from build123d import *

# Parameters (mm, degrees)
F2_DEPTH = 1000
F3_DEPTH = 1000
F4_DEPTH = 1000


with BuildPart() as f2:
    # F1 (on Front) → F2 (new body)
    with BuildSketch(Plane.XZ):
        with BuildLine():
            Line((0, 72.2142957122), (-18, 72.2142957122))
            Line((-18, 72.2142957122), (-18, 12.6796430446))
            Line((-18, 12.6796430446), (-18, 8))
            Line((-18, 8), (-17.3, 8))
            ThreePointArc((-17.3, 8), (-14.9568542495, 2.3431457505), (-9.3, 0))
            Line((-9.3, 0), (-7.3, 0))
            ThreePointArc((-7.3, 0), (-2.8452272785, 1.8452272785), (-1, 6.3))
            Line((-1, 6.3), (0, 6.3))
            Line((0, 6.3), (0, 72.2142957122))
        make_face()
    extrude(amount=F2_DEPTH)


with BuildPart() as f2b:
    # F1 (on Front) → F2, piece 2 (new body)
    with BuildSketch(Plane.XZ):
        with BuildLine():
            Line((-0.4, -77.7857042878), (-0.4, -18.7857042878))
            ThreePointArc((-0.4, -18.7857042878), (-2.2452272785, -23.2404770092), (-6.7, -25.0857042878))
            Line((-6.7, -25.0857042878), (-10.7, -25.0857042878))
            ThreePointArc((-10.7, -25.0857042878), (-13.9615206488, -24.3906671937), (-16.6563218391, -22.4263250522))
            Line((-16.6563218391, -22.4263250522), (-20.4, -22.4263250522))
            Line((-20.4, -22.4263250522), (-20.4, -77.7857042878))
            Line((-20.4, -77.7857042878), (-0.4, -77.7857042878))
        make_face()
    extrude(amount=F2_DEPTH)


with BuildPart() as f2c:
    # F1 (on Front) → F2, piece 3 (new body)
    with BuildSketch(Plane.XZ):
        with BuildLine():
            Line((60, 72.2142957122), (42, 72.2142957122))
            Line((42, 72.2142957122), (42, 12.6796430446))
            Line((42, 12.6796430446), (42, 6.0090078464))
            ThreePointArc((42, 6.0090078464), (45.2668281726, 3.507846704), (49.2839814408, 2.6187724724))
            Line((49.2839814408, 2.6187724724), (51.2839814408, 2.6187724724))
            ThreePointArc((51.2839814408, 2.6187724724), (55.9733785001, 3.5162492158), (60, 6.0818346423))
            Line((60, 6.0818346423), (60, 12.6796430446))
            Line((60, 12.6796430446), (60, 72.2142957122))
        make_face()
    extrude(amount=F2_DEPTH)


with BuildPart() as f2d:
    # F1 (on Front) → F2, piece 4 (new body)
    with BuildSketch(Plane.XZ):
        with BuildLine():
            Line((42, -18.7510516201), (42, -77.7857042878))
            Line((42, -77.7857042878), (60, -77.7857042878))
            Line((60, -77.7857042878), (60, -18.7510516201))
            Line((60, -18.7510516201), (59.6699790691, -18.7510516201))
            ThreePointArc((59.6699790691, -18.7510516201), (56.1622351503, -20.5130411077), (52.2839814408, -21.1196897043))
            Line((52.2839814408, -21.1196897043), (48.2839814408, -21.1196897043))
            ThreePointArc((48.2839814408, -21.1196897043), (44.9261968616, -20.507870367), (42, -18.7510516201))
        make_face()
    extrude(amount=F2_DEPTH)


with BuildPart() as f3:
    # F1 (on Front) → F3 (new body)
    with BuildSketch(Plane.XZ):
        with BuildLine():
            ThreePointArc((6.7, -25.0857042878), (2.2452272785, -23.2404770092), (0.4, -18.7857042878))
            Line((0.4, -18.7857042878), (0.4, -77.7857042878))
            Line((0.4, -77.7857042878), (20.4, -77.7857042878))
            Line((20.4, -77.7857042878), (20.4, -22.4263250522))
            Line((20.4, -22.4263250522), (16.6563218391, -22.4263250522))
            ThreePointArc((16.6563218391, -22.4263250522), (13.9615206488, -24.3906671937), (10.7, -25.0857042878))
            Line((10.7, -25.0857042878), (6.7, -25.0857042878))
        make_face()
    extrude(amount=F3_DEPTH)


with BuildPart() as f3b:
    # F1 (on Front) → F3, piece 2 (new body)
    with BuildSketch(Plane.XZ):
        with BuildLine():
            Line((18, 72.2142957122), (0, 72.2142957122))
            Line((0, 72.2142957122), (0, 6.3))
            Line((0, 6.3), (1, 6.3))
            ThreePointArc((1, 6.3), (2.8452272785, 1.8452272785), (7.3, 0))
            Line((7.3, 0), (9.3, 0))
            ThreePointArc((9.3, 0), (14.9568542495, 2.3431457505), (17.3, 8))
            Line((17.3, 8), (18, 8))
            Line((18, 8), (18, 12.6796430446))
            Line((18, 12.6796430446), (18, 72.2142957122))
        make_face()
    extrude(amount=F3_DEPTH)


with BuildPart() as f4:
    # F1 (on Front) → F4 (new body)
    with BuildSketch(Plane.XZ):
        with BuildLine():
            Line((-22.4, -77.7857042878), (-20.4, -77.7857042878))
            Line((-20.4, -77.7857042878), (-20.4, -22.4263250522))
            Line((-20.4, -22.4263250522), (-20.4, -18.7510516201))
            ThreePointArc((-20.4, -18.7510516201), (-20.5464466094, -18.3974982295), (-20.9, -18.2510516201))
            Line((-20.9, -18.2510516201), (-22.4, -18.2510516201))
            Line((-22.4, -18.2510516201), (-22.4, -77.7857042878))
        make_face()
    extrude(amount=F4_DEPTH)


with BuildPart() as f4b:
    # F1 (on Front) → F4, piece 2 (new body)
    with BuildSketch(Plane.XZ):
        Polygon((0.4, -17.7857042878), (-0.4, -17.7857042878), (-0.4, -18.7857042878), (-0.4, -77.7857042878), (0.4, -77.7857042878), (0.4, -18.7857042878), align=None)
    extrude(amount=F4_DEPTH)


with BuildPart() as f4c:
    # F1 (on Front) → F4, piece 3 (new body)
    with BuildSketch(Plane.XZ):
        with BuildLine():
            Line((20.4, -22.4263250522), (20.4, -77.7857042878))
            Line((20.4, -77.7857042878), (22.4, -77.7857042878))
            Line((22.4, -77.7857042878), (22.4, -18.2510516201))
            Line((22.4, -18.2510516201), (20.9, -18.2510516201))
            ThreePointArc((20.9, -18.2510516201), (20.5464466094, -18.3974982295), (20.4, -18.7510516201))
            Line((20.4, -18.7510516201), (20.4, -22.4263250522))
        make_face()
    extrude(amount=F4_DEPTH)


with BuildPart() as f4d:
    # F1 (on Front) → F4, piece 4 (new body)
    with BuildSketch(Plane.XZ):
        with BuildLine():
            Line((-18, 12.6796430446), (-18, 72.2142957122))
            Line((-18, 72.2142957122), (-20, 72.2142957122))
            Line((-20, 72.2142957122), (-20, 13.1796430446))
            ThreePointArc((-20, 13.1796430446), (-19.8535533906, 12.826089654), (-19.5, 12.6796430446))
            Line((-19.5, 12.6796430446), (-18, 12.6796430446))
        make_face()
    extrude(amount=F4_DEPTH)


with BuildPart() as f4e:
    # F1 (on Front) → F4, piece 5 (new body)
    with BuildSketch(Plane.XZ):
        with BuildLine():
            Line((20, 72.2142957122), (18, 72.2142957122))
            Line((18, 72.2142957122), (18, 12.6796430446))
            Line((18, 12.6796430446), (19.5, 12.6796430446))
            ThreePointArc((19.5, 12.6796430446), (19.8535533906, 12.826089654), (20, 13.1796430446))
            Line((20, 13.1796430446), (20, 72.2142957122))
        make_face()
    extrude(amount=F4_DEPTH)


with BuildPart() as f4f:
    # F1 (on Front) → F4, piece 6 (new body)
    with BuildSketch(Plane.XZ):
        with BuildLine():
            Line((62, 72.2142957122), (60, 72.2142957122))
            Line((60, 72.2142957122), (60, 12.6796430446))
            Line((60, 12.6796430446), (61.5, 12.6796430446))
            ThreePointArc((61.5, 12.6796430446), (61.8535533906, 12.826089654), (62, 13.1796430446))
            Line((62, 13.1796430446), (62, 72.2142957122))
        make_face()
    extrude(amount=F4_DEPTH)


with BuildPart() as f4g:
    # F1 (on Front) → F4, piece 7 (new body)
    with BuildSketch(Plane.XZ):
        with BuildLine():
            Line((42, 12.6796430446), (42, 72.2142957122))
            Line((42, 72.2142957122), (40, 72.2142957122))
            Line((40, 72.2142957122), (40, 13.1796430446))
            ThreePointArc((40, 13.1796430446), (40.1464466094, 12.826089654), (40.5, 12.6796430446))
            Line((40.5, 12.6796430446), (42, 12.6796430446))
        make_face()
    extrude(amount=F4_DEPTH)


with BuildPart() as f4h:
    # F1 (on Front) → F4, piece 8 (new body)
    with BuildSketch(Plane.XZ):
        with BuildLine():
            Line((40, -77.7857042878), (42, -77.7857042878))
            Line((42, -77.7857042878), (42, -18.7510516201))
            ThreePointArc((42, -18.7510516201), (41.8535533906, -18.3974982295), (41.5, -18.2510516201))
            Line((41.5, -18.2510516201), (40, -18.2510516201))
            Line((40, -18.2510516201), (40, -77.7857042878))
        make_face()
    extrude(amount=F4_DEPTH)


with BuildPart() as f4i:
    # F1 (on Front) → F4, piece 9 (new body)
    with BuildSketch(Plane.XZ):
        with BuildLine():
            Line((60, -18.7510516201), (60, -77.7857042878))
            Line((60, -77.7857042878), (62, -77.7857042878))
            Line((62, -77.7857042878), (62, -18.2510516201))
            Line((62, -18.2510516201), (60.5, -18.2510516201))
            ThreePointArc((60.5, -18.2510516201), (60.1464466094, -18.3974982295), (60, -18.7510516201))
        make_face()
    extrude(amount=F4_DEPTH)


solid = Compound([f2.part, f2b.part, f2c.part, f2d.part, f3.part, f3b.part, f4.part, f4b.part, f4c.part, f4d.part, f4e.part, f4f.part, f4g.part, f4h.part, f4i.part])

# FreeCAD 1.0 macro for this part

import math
import FreeCAD as App
import Part
import Sketcher

V = App.Vector
Q = App.Units.Quantity

doc = App.newDocument("Part")
body = doc.addObject("PartDesign::Body", "Body")

# Sketch on XZ plane
sketch1 = body.newObject("Sketcher::SketchObject", "Sketch")
sketch1.AttachmentSupport = (doc.getObject("XZ_Plane"), [""])
sketch1.MapMode = "FlatFace"
sketch1.addGeometry(Part.LineSegment(V(0, 72.214296, 0), V(-18, 72.214296, 0)), False)
sketch1.addGeometry(Part.LineSegment(V(-18, 72.214296, 0), V(-18, 8, 0)), False)
sketch1.addGeometry(Part.LineSegment(V(-18, 8, 0), V(-17.3, 8, 0)), False)
sketch1.addGeometry(Part.ArcOfCircle(Part.Circle(V(-9.3, 8, 0), V(0, 0, 1), 8), math.radians(180), math.radians(270)), False)
sketch1.addGeometry(Part.LineSegment(V(-9.3, 0, 0), V(-7.3, 0, 0)), False)
sketch1.addGeometry(Part.ArcOfCircle(Part.Circle(V(-7.3, 6.3, 0), V(0, 0, 1), 6.3), math.radians(-90), math.radians(0)), False)
sketch1.addGeometry(Part.LineSegment(V(-1, 6.3, 0), V(0, 6.3, 0)), False)
sketch1.addGeometry(Part.LineSegment(V(0, 6.3, 0), V(0, 72.214296, 0)), False)
sketch1.addConstraint(Sketcher.Constraint("Coincident", 0, 2, 1, 1))
sketch1.addConstraint(Sketcher.Constraint("Coincident", 1, 2, 2, 1))
sketch1.addConstraint(Sketcher.Constraint("Coincident", 2, 2, 3, 1))
sketch1.addConstraint(Sketcher.Constraint("Tangent", 3, 2, 4, 1))
sketch1.addConstraint(Sketcher.Constraint("Tangent", 4, 2, 5, 1))
sketch1.addConstraint(Sketcher.Constraint("Coincident", 5, 2, 6, 1))
sketch1.addConstraint(Sketcher.Constraint("Coincident", 6, 2, 7, 1))
sketch1.addConstraint(Sketcher.Constraint("Coincident", 7, 2, 0, 1))
sketch1.addConstraint(Sketcher.Constraint("Horizontal", 0))
sketch1.addConstraint(Sketcher.Constraint("Vertical", 1))
sketch1.addConstraint(Sketcher.Constraint("Horizontal", 2))
sketch1.addConstraint(Sketcher.Constraint("Horizontal", 4))
sketch1.addConstraint(Sketcher.Constraint("Horizontal", 6))
sketch1.addConstraint(Sketcher.Constraint("Vertical", 7))
sketch1.addConstraint(Sketcher.Constraint("PointOnObject", 3, 2, -1))
sketch1.addConstraint(Sketcher.Constraint("PointOnObject", 6, 2, -2))
sketch1.addConstraint(Sketcher.Constraint("Horizontal", 3, 3, 1, 2))
sketch1.addConstraint(Sketcher.Constraint("Radius", 3, Q("8 mm")))
sketch1.addConstraint(Sketcher.Constraint("Radius", 5, Q("6.3 mm")))
sketch1.addConstraint(Sketcher.Constraint("DistanceX", 0, 2, 0, 1, Q("18 mm")))
sketch1.addConstraint(Sketcher.Constraint("DistanceX", 4, 1, 4, 2, Q("2 mm")))
sketch1.addConstraint(Sketcher.Constraint("DistanceX", 6, 1, 6, 2, Q("1 mm")))
sketch1.addConstraint(Sketcher.Constraint("DistanceY", -1, 1, 5, 2, Q("6.3 mm")))
sketch1.addConstraint(Sketcher.Constraint("DistanceY", 1, 2, 1, 1, Q("64.214296 mm")))
pad1 = body.newObject("PartDesign::Pad", "Pad")
pad1.Profile = sketch1
pad1.Length = 1000
body2 = doc.addObject("PartDesign::Body", "Body001")

# Sketch on XZ plane
sketch2 = body2.newObject("Sketcher::SketchObject", "Sketch001")
sketch2.AttachmentSupport = (doc.getObject("XZ_Plane001"), [""])
sketch2.MapMode = "FlatFace"
sketch2.addGeometry(Part.LineSegment(V(-0.4, -77.785704, 0), V(-0.4, -18.785704, 0)), False)
sketch2.addGeometry(Part.ArcOfCircle(Part.Circle(V(-6.7, -18.785704, 0), V(0, 0, 1), 6.3), math.radians(-90), math.radians(0)), False)
sketch2.addGeometry(Part.LineSegment(V(-6.7, -25.085704, 0), V(-10.7, -25.085704, 0)), False)
sketch2.addGeometry(Part.ArcOfCircle(Part.Circle(V(-10.7, -17.085704, 0), V(0, 0, 1), 8), math.radians(-138.119623), math.radians(-90)), False)
sketch2.addGeometry(Part.LineSegment(V(-16.656322, -22.426325, 0), V(-20.4, -22.426325, 0)), False)
sketch2.addGeometry(Part.LineSegment(V(-20.4, -22.426325, 0), V(-20.4, -77.785704, 0)), False)
sketch2.addGeometry(Part.LineSegment(V(-20.4, -77.785704, 0), V(-0.4, -77.785704, 0)), False)
sketch2.addConstraint(Sketcher.Constraint("Tangent", 0, 2, 1, 2))
sketch2.addConstraint(Sketcher.Constraint("Tangent", 1, 1, 2, 1))
sketch2.addConstraint(Sketcher.Constraint("Tangent", 2, 2, 3, 2))
sketch2.addConstraint(Sketcher.Constraint("Coincident", 3, 1, 4, 1))
sketch2.addConstraint(Sketcher.Constraint("Coincident", 4, 2, 5, 1))
sketch2.addConstraint(Sketcher.Constraint("Coincident", 5, 2, 6, 1))
sketch2.addConstraint(Sketcher.Constraint("Coincident", 6, 2, 0, 1))
sketch2.addConstraint(Sketcher.Constraint("Vertical", 0))
sketch2.addConstraint(Sketcher.Constraint("Horizontal", 2))
sketch2.addConstraint(Sketcher.Constraint("Horizontal", 4))
sketch2.addConstraint(Sketcher.Constraint("Vertical", 5))
sketch2.addConstraint(Sketcher.Constraint("Horizontal", 6))
sketch2.addConstraint(Sketcher.Constraint("Radius", 3, Q("8 mm")))
sketch2.addConstraint(Sketcher.Constraint("Radius", 1, Q("6.3 mm")))
sketch2.addConstraint(Sketcher.Constraint("DistanceX", 2, 2, 2, 1, Q("4 mm")))
sketch2.addConstraint(Sketcher.Constraint("DistanceX", 6, 1, 6, 2, Q("20 mm")))
sketch2.addConstraint(Sketcher.Constraint("DistanceY", 0, 1, 0, 2, Q("59 mm")))
sketch2.addConstraint(Sketcher.Constraint("DistanceX", 1, 3, -1, 1, Q("6.7 mm")))
sketch2.addConstraint(Sketcher.Constraint("DistanceX", 4, 2, 4, 1, Q("3.743678 mm")))
sketch2.addConstraint(Sketcher.Constraint("DistanceY", 1, 3, -1, 1, Q("18.785704 mm")))
pad2 = body2.newObject("PartDesign::Pad", "Pad001")
pad2.Profile = sketch2
pad2.Length = 1000
body3 = doc.addObject("PartDesign::Body", "Body002")

# Sketch on XZ plane
sketch3 = body3.newObject("Sketcher::SketchObject", "Sketch002")
sketch3.AttachmentSupport = (doc.getObject("XZ_Plane002"), [""])
sketch3.MapMode = "FlatFace"
sketch3.addGeometry(Part.LineSegment(V(60, 72.214296, 0), V(42, 72.214296, 0)), False)
sketch3.addGeometry(Part.LineSegment(V(42, 72.214296, 0), V(42, 6.009008, 0)), False)
sketch3.addGeometry(Part.ArcOfCircle(Part.Circle(V(49.283981, 12.138772, 0), V(0, 0, 1), 9.52), math.radians(-139.918034), math.radians(-90)), False)
sketch3.addGeometry(Part.LineSegment(V(49.283981, 2.618772, 0), V(51.283981, 2.618772, 0)), False)
sketch3.addGeometry(Part.ArcOfCircle(Part.Circle(V(51.283981, 15.318772, 0), V(0, 0, 1), 12.7), math.radians(-90), math.radians(-46.662016)), False)
sketch3.addGeometry(Part.LineSegment(V(60, 6.081835, 0), V(60, 72.214296, 0)), False)
sketch3.addConstraint(Sketcher.Constraint("Coincident", 0, 2, 1, 1))
sketch3.addConstraint(Sketcher.Constraint("Coincident", 1, 2, 2, 1))
sketch3.addConstraint(Sketcher.Constraint("Tangent", 2, 2, 3, 1))
sketch3.addConstraint(Sketcher.Constraint("Tangent", 3, 2, 4, 1))
sketch3.addConstraint(Sketcher.Constraint("Coincident", 4, 2, 5, 1))
sketch3.addConstraint(Sketcher.Constraint("Coincident", 5, 2, 0, 1))
sketch3.addConstraint(Sketcher.Constraint("Horizontal", 0))
sketch3.addConstraint(Sketcher.Constraint("Vertical", 1))
sketch3.addConstraint(Sketcher.Constraint("Horizontal", 3))
sketch3.addConstraint(Sketcher.Constraint("Vertical", 5))
sketch3.addConstraint(Sketcher.Constraint("Radius", 4, Q("12.7 mm")))
sketch3.addConstraint(Sketcher.Constraint("DistanceX", 0, 2, 0, 1, Q("18 mm")))
sketch3.addConstraint(Sketcher.Constraint("DistanceX", 3, 1, 3, 2, Q("2 mm")))
sketch3.addConstraint(Sketcher.Constraint("Radius", 2, Q("9.52 mm")))
sketch3.addConstraint(Sketcher.Constraint("DistanceX", -1, 1, 0, 2, Q("42 mm")))
sketch3.addConstraint(Sketcher.Constraint("DistanceY", 5, 1, 5, 2, Q("66.132461 mm")))
sketch3.addConstraint(Sketcher.Constraint("DistanceY", 1, 2, 1, 1, Q("66.205288 mm")))
sketch3.addConstraint(Sketcher.Constraint("DistanceY", -1, 1, 2, 3, Q("12.138772 mm")))
pad3 = body3.newObject("PartDesign::Pad", "Pad002")
pad3.Profile = sketch3
pad3.Length = 1000
body4 = doc.addObject("PartDesign::Body", "Body003")

# Sketch on XZ plane
sketch4 = body4.newObject("Sketcher::SketchObject", "Sketch003")
sketch4.AttachmentSupport = (doc.getObject("XZ_Plane003"), [""])
sketch4.MapMode = "FlatFace"
sketch4.addGeometry(Part.LineSegment(V(42, -18.751052, 0), V(42, -77.785704, 0)), False)
sketch4.addGeometry(Part.LineSegment(V(42, -77.785704, 0), V(60, -77.785704, 0)), False)
sketch4.addGeometry(Part.LineSegment(V(60, -77.785704, 0), V(60, -18.751052, 0)), False)
sketch4.addGeometry(Part.LineSegment(V(60, -18.751052, 0), V(59.669979, -18.751052, 0)), False)
sketch4.addGeometry(Part.ArcOfCircle(Part.Circle(V(52.283981, -8.41969, 0), V(0, 0, 1), 12.7), math.radians(-90), math.radians(-54.438631)), False)
sketch4.addGeometry(Part.LineSegment(V(52.283981, -21.11969, 0), V(48.283981, -21.11969, 0)), False)
sketch4.addGeometry(Part.ArcOfCircle(Part.Circle(V(48.283981, -11.59969, 0), V(0, 0, 1), 9.52), math.radians(-131.306133), math.radians(-90)), False)
sketch4.addConstraint(Sketcher.Constraint("Coincident", 0, 2, 1, 1))
sketch4.addConstraint(Sketcher.Constraint("Coincident", 1, 2, 2, 1))
sketch4.addConstraint(Sketcher.Constraint("Coincident", 2, 2, 3, 1))
sketch4.addConstraint(Sketcher.Constraint("Coincident", 3, 2, 4, 2))
sketch4.addConstraint(Sketcher.Constraint("Tangent", 4, 1, 5, 1))
sketch4.addConstraint(Sketcher.Constraint("Tangent", 5, 2, 6, 2))
sketch4.addConstraint(Sketcher.Constraint("Coincident", 6, 1, 0, 1))
sketch4.addConstraint(Sketcher.Constraint("Vertical", 0))
sketch4.addConstraint(Sketcher.Constraint("Horizontal", 1))
sketch4.addConstraint(Sketcher.Constraint("Vertical", 2))
sketch4.addConstraint(Sketcher.Constraint("Horizontal", 3))
sketch4.addConstraint(Sketcher.Constraint("Horizontal", 5))
sketch4.addConstraint(Sketcher.Constraint("Horizontal", 3, 2, 6, 1))
sketch4.addConstraint(Sketcher.Constraint("Radius", 4, Q("12.7 mm")))
sketch4.addConstraint(Sketcher.Constraint("DistanceX", 1, 1, 1, 2, Q("18 mm")))
sketch4.addConstraint(Sketcher.Constraint("DistanceX", 5, 2, 5, 1, Q("4 mm")))
sketch4.addConstraint(Sketcher.Constraint("Radius", 6, Q("9.52 mm")))
sketch4.addConstraint(Sketcher.Constraint("DistanceX", -1, 1, 0, 2, Q("42 mm")))
sketch4.addConstraint(Sketcher.Constraint("DistanceX", 3, 2, 3, 1, Q("0.330021 mm")))
sketch4.addConstraint(Sketcher.Constraint("DistanceY", 0, 2, 0, 1, Q("59.034653 mm")))
sketch4.addConstraint(Sketcher.Constraint("DistanceY", 4, 3, -1, 1, Q("8.41969 mm")))
pad4 = body4.newObject("PartDesign::Pad", "Pad003")
pad4.Profile = sketch4
pad4.Length = 1000
body5 = doc.addObject("PartDesign::Body", "Body004")

# Sketch on XZ plane
sketch5 = body5.newObject("Sketcher::SketchObject", "Sketch004")
sketch5.AttachmentSupport = (doc.getObject("XZ_Plane004"), [""])
sketch5.MapMode = "FlatFace"
sketch5.addGeometry(Part.ArcOfCircle(Part.Circle(V(6.7, -18.785704, 0), V(0, 0, 1), 6.3), math.radians(180), math.radians(270)), False)
sketch5.addGeometry(Part.LineSegment(V(0.4, -18.785704, 0), V(0.4, -77.785704, 0)), False)
sketch5.addGeometry(Part.LineSegment(V(0.4, -77.785704, 0), V(20.4, -77.785704, 0)), False)
sketch5.addGeometry(Part.LineSegment(V(20.4, -77.785704, 0), V(20.4, -22.426325, 0)), False)
sketch5.addGeometry(Part.LineSegment(V(20.4, -22.426325, 0), V(16.656322, -22.426325, 0)), False)
sketch5.addGeometry(Part.ArcOfCircle(Part.Circle(V(10.7, -17.085704, 0), V(0, 0, 1), 8), math.radians(-90), math.radians(-41.880377)), False)
sketch5.addGeometry(Part.LineSegment(V(10.7, -25.085704, 0), V(6.7, -25.085704, 0)), False)
sketch5.addConstraint(Sketcher.Constraint("Tangent", 0, 1, 1, 1))
sketch5.addConstraint(Sketcher.Constraint("Coincident", 1, 2, 2, 1))
sketch5.addConstraint(Sketcher.Constraint("Coincident", 2, 2, 3, 1))
sketch5.addConstraint(Sketcher.Constraint("Coincident", 3, 2, 4, 1))
sketch5.addConstraint(Sketcher.Constraint("Coincident", 4, 2, 5, 2))
sketch5.addConstraint(Sketcher.Constraint("Tangent", 5, 1, 6, 1))
sketch5.addConstraint(Sketcher.Constraint("Tangent", 6, 2, 0, 2))
sketch5.addConstraint(Sketcher.Constraint("Vertical", 1))
sketch5.addConstraint(Sketcher.Constraint("Horizontal", 2))
sketch5.addConstraint(Sketcher.Constraint("Vertical", 3))
sketch5.addConstraint(Sketcher.Constraint("Horizontal", 4))
sketch5.addConstraint(Sketcher.Constraint("Horizontal", 6))
sketch5.addConstraint(Sketcher.Constraint("Radius", 5, Q("8 mm")))
sketch5.addConstraint(Sketcher.Constraint("Radius", 0, Q("6.3 mm")))
sketch5.addConstraint(Sketcher.Constraint("DistanceX", 2, 1, 2, 2, Q("20 mm")))
sketch5.addConstraint(Sketcher.Constraint("DistanceX", 6, 2, 6, 1, Q("4 mm")))
sketch5.addConstraint(Sketcher.Constraint("DistanceY", 1, 2, 1, 1, Q("59 mm")))
sketch5.addConstraint(Sketcher.Constraint("DistanceX", -1, 1, 0, 3, Q("6.7 mm")))
sketch5.addConstraint(Sketcher.Constraint("DistanceX", 4, 2, 4, 1, Q("3.743678 mm")))
sketch5.addConstraint(Sketcher.Constraint("DistanceY", 0, 3, -1, 1, Q("18.785704 mm")))
pad5 = body5.newObject("PartDesign::Pad", "Pad004")
pad5.Profile = sketch5
pad5.Length = 1000
body6 = doc.addObject("PartDesign::Body", "Body005")

# Sketch on XZ plane
sketch6 = body6.newObject("Sketcher::SketchObject", "Sketch005")
sketch6.AttachmentSupport = (doc.getObject("XZ_Plane005"), [""])
sketch6.MapMode = "FlatFace"
sketch6.addGeometry(Part.LineSegment(V(18, 72.214296, 0), V(0, 72.214296, 0)), False)
sketch6.addGeometry(Part.LineSegment(V(0, 72.214296, 0), V(0, 6.3, 0)), False)
sketch6.addGeometry(Part.LineSegment(V(0, 6.3, 0), V(1, 6.3, 0)), False)
sketch6.addGeometry(Part.ArcOfCircle(Part.Circle(V(7.3, 6.3, 0), V(0, 0, 1), 6.3), math.radians(180), math.radians(270)), False)
sketch6.addGeometry(Part.LineSegment(V(7.3, 0, 0), V(9.3, 0, 0)), False)
sketch6.addGeometry(Part.ArcOfCircle(Part.Circle(V(9.3, 8, 0), V(0, 0, 1), 8), math.radians(-90), math.radians(0)), False)
sketch6.addGeometry(Part.LineSegment(V(17.3, 8, 0), V(18, 8, 0)), False)
sketch6.addGeometry(Part.LineSegment(V(18, 8, 0), V(18, 72.214296, 0)), False)
sketch6.addConstraint(Sketcher.Constraint("Coincident", 0, 2, 1, 1))
sketch6.addConstraint(Sketcher.Constraint("Coincident", 1, 2, 2, 1))
sketch6.addConstraint(Sketcher.Constraint("Coincident", 2, 2, 3, 1))
sketch6.addConstraint(Sketcher.Constraint("Tangent", 3, 2, 4, 1))
sketch6.addConstraint(Sketcher.Constraint("Tangent", 4, 2, 5, 1))
sketch6.addConstraint(Sketcher.Constraint("Coincident", 5, 2, 6, 1))
sketch6.addConstraint(Sketcher.Constraint("Coincident", 6, 2, 7, 1))
sketch6.addConstraint(Sketcher.Constraint("Coincident", 7, 2, 0, 1))
sketch6.addConstraint(Sketcher.Constraint("Horizontal", 0))
sketch6.addConstraint(Sketcher.Constraint("Vertical", 1))
sketch6.addConstraint(Sketcher.Constraint("Horizontal", 2))
sketch6.addConstraint(Sketcher.Constraint("Horizontal", 4))
sketch6.addConstraint(Sketcher.Constraint("Horizontal", 6))
sketch6.addConstraint(Sketcher.Constraint("Vertical", 7))
sketch6.addConstraint(Sketcher.Constraint("PointOnObject", 0, 2, -2))
sketch6.addConstraint(Sketcher.Constraint("PointOnObject", 3, 2, -1))
sketch6.addConstraint(Sketcher.Constraint("Horizontal", 3, 3, 1, 2))
sketch6.addConstraint(Sketcher.Constraint("Radius", 5, Q("8 mm")))
sketch6.addConstraint(Sketcher.Constraint("Radius", 3, Q("6.3 mm")))
sketch6.addConstraint(Sketcher.Constraint("DistanceX", 0, 2, 0, 1, Q("18 mm")))
sketch6.addConstraint(Sketcher.Constraint("DistanceX", 2, 1, 2, 2, Q("1 mm")))
sketch6.addConstraint(Sketcher.Constraint("DistanceX", 4, 1, 4, 2, Q("2 mm")))
sketch6.addConstraint(Sketcher.Constraint("DistanceY", -1, 1, 5, 2, Q("8 mm")))
sketch6.addConstraint(Sketcher.Constraint("DistanceY", 1, 2, 1, 1, Q("65.914296 mm")))
pad6 = body6.newObject("PartDesign::Pad", "Pad005")
pad6.Profile = sketch6
pad6.Length = 1000
body7 = doc.addObject("PartDesign::Body", "Body006")

# Sketch on XZ plane
sketch7 = body7.newObject("Sketcher::SketchObject", "Sketch006")
sketch7.AttachmentSupport = (doc.getObject("XZ_Plane006"), [""])
sketch7.MapMode = "FlatFace"
sketch7.addGeometry(Part.LineSegment(V(-22.4, -77.785704, 0), V(-20.4, -77.785704, 0)), False)
sketch7.addGeometry(Part.LineSegment(V(-20.4, -77.785704, 0), V(-20.4, -18.751052, 0)), False)
sketch7.addGeometry(Part.ArcOfCircle(Part.Circle(V(-20.9, -18.751052, 0), V(0, 0, 1), 0.5), math.radians(0), math.radians(90)), False)
sketch7.addGeometry(Part.LineSegment(V(-20.9, -18.251052, 0), V(-22.4, -18.251052, 0)), False)
sketch7.addGeometry(Part.LineSegment(V(-22.4, -18.251052, 0), V(-22.4, -77.785704, 0)), False)
sketch7.addConstraint(Sketcher.Constraint("Coincident", 0, 2, 1, 1))
sketch7.addConstraint(Sketcher.Constraint("Tangent", 1, 2, 2, 1))
sketch7.addConstraint(Sketcher.Constraint("Tangent", 2, 2, 3, 1))
sketch7.addConstraint(Sketcher.Constraint("Coincident", 3, 2, 4, 1))
sketch7.addConstraint(Sketcher.Constraint("Coincident", 4, 2, 0, 1))
sketch7.addConstraint(Sketcher.Constraint("Horizontal", 0))
sketch7.addConstraint(Sketcher.Constraint("Vertical", 1))
sketch7.addConstraint(Sketcher.Constraint("Horizontal", 3))
sketch7.addConstraint(Sketcher.Constraint("Vertical", 4))
sketch7.addConstraint(Sketcher.Constraint("Radius", 2, Q("0.5 mm")))
sketch7.addConstraint(Sketcher.Constraint("DistanceX", 0, 1, 0, 2, Q("2 mm")))
sketch7.addConstraint(Sketcher.Constraint("DistanceX", 2, 3, -1, 1, Q("20.9 mm")))
sketch7.addConstraint(Sketcher.Constraint("DistanceY", 1, 1, 1, 2, Q("59.034653 mm")))
sketch7.addConstraint(Sketcher.Constraint("DistanceY", 2, 3, -1, 1, Q("18.751052 mm")))
pad7 = body7.newObject("PartDesign::Pad", "Pad006")
pad7.Profile = sketch7
pad7.Length = 1000
body8 = doc.addObject("PartDesign::Body", "Body007")

# Sketch on XZ plane
sketch8 = body8.newObject("Sketcher::SketchObject", "Sketch007")
sketch8.AttachmentSupport = (doc.getObject("XZ_Plane007"), [""])
sketch8.MapMode = "FlatFace"
sketch8.addGeometry(Part.LineSegment(V(0.4, -17.785704, 0), V(-0.4, -17.785704, 0)), False)
sketch8.addGeometry(Part.LineSegment(V(-0.4, -17.785704, 0), V(-0.4, -77.785704, 0)), False)
sketch8.addGeometry(Part.LineSegment(V(-0.4, -77.785704, 0), V(0.4, -77.785704, 0)), False)
sketch8.addGeometry(Part.LineSegment(V(0.4, -77.785704, 0), V(0.4, -17.785704, 0)), False)
sketch8.addConstraint(Sketcher.Constraint("Coincident", 0, 2, 1, 1))
sketch8.addConstraint(Sketcher.Constraint("Coincident", 1, 2, 2, 1))
sketch8.addConstraint(Sketcher.Constraint("Coincident", 2, 2, 3, 1))
sketch8.addConstraint(Sketcher.Constraint("Coincident", 3, 2, 0, 1))
sketch8.addConstraint(Sketcher.Constraint("Horizontal", 0))
sketch8.addConstraint(Sketcher.Constraint("Vertical", 1))
sketch8.addConstraint(Sketcher.Constraint("Horizontal", 2))
sketch8.addConstraint(Sketcher.Constraint("Vertical", 3))
sketch8.addConstraint(Sketcher.Constraint("DistanceY", 1, 2, 1, 1, Q("60 mm")))
sketch8.addConstraint(Sketcher.Constraint("DistanceX", 0, 2, 0, 1, Q("0.8 mm")))
sketch8.addConstraint(Sketcher.Constraint("DistanceX", 0, 2, -1, 1, Q("0.4 mm")))
sketch8.addConstraint(Sketcher.Constraint("DistanceY", 0, 2, -1, 1, Q("17.785704 mm")))
pad8 = body8.newObject("PartDesign::Pad", "Pad007")
pad8.Profile = sketch8
pad8.Length = 1000
body9 = doc.addObject("PartDesign::Body", "Body008")

# Sketch on XZ plane
sketch9 = body9.newObject("Sketcher::SketchObject", "Sketch008")
sketch9.AttachmentSupport = (doc.getObject("XZ_Plane008"), [""])
sketch9.MapMode = "FlatFace"
sketch9.addGeometry(Part.LineSegment(V(20.4, -77.785704, 0), V(22.4, -77.785704, 0)), False)
sketch9.addGeometry(Part.LineSegment(V(22.4, -77.785704, 0), V(22.4, -18.251052, 0)), False)
sketch9.addGeometry(Part.LineSegment(V(22.4, -18.251052, 0), V(20.9, -18.251052, 0)), False)
sketch9.addGeometry(Part.ArcOfCircle(Part.Circle(V(20.9, -18.751052, 0), V(0, 0, 1), 0.5), math.radians(90), math.radians(180)), False)
sketch9.addGeometry(Part.LineSegment(V(20.4, -18.751052, 0), V(20.4, -77.785704, 0)), False)
sketch9.addConstraint(Sketcher.Constraint("Coincident", 0, 2, 1, 1))
sketch9.addConstraint(Sketcher.Constraint("Coincident", 1, 2, 2, 1))
sketch9.addConstraint(Sketcher.Constraint("Tangent", 2, 2, 3, 1))
sketch9.addConstraint(Sketcher.Constraint("Tangent", 3, 2, 4, 1))
sketch9.addConstraint(Sketcher.Constraint("Coincident", 4, 2, 0, 1))
sketch9.addConstraint(Sketcher.Constraint("Horizontal", 0))
sketch9.addConstraint(Sketcher.Constraint("Vertical", 1))
sketch9.addConstraint(Sketcher.Constraint("Horizontal", 2))
sketch9.addConstraint(Sketcher.Constraint("Vertical", 4))
sketch9.addConstraint(Sketcher.Constraint("Radius", 3, Q("0.5 mm")))
sketch9.addConstraint(Sketcher.Constraint("DistanceX", 0, 1, 0, 2, Q("2 mm")))
sketch9.addConstraint(Sketcher.Constraint("DistanceX", -1, 1, 3, 3, Q("20.9 mm")))
sketch9.addConstraint(Sketcher.Constraint("DistanceY", 1, 1, 1, 2, Q("59.534653 mm")))
sketch9.addConstraint(Sketcher.Constraint("DistanceY", 3, 3, -1, 1, Q("18.751052 mm")))
pad9 = body9.newObject("PartDesign::Pad", "Pad008")
pad9.Profile = sketch9
pad9.Length = 1000
body10 = doc.addObject("PartDesign::Body", "Body009")

# Sketch on XZ plane
sketch10 = body10.newObject("Sketcher::SketchObject", "Sketch009")
sketch10.AttachmentSupport = (doc.getObject("XZ_Plane009"), [""])
sketch10.MapMode = "FlatFace"
sketch10.addGeometry(Part.LineSegment(V(-18, 12.679643, 0), V(-18, 72.214296, 0)), False)
sketch10.addGeometry(Part.LineSegment(V(-18, 72.214296, 0), V(-20, 72.214296, 0)), False)
sketch10.addGeometry(Part.LineSegment(V(-20, 72.214296, 0), V(-20, 13.179643, 0)), False)
sketch10.addGeometry(Part.ArcOfCircle(Part.Circle(V(-19.5, 13.179643, 0), V(0, 0, 1), 0.5), math.radians(180), math.radians(270)), False)
sketch10.addGeometry(Part.LineSegment(V(-19.5, 12.679643, 0), V(-18, 12.679643, 0)), False)
sketch10.addConstraint(Sketcher.Constraint("Coincident", 0, 2, 1, 1))
sketch10.addConstraint(Sketcher.Constraint("Coincident", 1, 2, 2, 1))
sketch10.addConstraint(Sketcher.Constraint("Tangent", 2, 2, 3, 1))
sketch10.addConstraint(Sketcher.Constraint("Tangent", 3, 2, 4, 1))
sketch10.addConstraint(Sketcher.Constraint("Coincident", 4, 2, 0, 1))
sketch10.addConstraint(Sketcher.Constraint("Vertical", 0))
sketch10.addConstraint(Sketcher.Constraint("Horizontal", 1))
sketch10.addConstraint(Sketcher.Constraint("Vertical", 2))
sketch10.addConstraint(Sketcher.Constraint("Horizontal", 4))
sketch10.addConstraint(Sketcher.Constraint("Radius", 3, Q("0.5 mm")))
sketch10.addConstraint(Sketcher.Constraint("DistanceX", 1, 2, 1, 1, Q("2 mm")))
sketch10.addConstraint(Sketcher.Constraint("DistanceX", 0, 2, -1, 1, Q("18 mm")))
sketch10.addConstraint(Sketcher.Constraint("DistanceY", 0, 1, 0, 2, Q("59.534653 mm")))
sketch10.addConstraint(Sketcher.Constraint("DistanceY", -1, 1, 3, 3, Q("13.179643 mm")))
pad10 = body10.newObject("PartDesign::Pad", "Pad009")
pad10.Profile = sketch10
pad10.Length = 1000
body11 = doc.addObject("PartDesign::Body", "Body010")

# Sketch on XZ plane
sketch11 = body11.newObject("Sketcher::SketchObject", "Sketch010")
sketch11.AttachmentSupport = (doc.getObject("XZ_Plane010"), [""])
sketch11.MapMode = "FlatFace"
sketch11.addGeometry(Part.LineSegment(V(20, 72.214296, 0), V(18, 72.214296, 0)), False)
sketch11.addGeometry(Part.LineSegment(V(18, 72.214296, 0), V(18, 12.679643, 0)), False)
sketch11.addGeometry(Part.LineSegment(V(18, 12.679643, 0), V(19.5, 12.679643, 0)), False)
sketch11.addGeometry(Part.ArcOfCircle(Part.Circle(V(19.5, 13.179643, 0), V(0, 0, 1), 0.5), math.radians(-90), math.radians(0)), False)
sketch11.addGeometry(Part.LineSegment(V(20, 13.179643, 0), V(20, 72.214296, 0)), False)
sketch11.addConstraint(Sketcher.Constraint("Coincident", 0, 2, 1, 1))
sketch11.addConstraint(Sketcher.Constraint("Coincident", 1, 2, 2, 1))
sketch11.addConstraint(Sketcher.Constraint("Tangent", 2, 2, 3, 1))
sketch11.addConstraint(Sketcher.Constraint("Tangent", 3, 2, 4, 1))
sketch11.addConstraint(Sketcher.Constraint("Coincident", 4, 2, 0, 1))
sketch11.addConstraint(Sketcher.Constraint("Horizontal", 0))
sketch11.addConstraint(Sketcher.Constraint("Vertical", 1))
sketch11.addConstraint(Sketcher.Constraint("Horizontal", 2))
sketch11.addConstraint(Sketcher.Constraint("Vertical", 4))
sketch11.addConstraint(Sketcher.Constraint("Radius", 3, Q("0.5 mm")))
sketch11.addConstraint(Sketcher.Constraint("DistanceX", 0, 2, 0, 1, Q("2 mm")))
sketch11.addConstraint(Sketcher.Constraint("DistanceX", -1, 1, 0, 2, Q("18 mm")))
sketch11.addConstraint(Sketcher.Constraint("DistanceY", 1, 2, 1, 1, Q("59.534653 mm")))
sketch11.addConstraint(Sketcher.Constraint("DistanceY", -1, 1, 3, 3, Q("13.179643 mm")))
pad11 = body11.newObject("PartDesign::Pad", "Pad010")
pad11.Profile = sketch11
pad11.Length = 1000
body12 = doc.addObject("PartDesign::Body", "Body011")

# Sketch on XZ plane
sketch12 = body12.newObject("Sketcher::SketchObject", "Sketch011")
sketch12.AttachmentSupport = (doc.getObject("XZ_Plane011"), [""])
sketch12.MapMode = "FlatFace"
sketch12.addGeometry(Part.LineSegment(V(62, 72.214296, 0), V(60, 72.214296, 0)), False)
sketch12.addGeometry(Part.LineSegment(V(60, 72.214296, 0), V(60, 12.679643, 0)), False)
sketch12.addGeometry(Part.LineSegment(V(60, 12.679643, 0), V(61.5, 12.679643, 0)), False)
sketch12.addGeometry(Part.ArcOfCircle(Part.Circle(V(61.5, 13.179643, 0), V(0, 0, 1), 0.5), math.radians(-90), math.radians(0)), False)
sketch12.addGeometry(Part.LineSegment(V(62, 13.179643, 0), V(62, 72.214296, 0)), False)
sketch12.addConstraint(Sketcher.Constraint("Coincident", 0, 2, 1, 1))
sketch12.addConstraint(Sketcher.Constraint("Coincident", 1, 2, 2, 1))
sketch12.addConstraint(Sketcher.Constraint("Tangent", 2, 2, 3, 1))
sketch12.addConstraint(Sketcher.Constraint("Tangent", 3, 2, 4, 1))
sketch12.addConstraint(Sketcher.Constraint("Coincident", 4, 2, 0, 1))
sketch12.addConstraint(Sketcher.Constraint("Horizontal", 0))
sketch12.addConstraint(Sketcher.Constraint("Vertical", 1))
sketch12.addConstraint(Sketcher.Constraint("Horizontal", 2))
sketch12.addConstraint(Sketcher.Constraint("Vertical", 4))
sketch12.addConstraint(Sketcher.Constraint("Radius", 3, Q("0.5 mm")))
sketch12.addConstraint(Sketcher.Constraint("DistanceX", 0, 2, 0, 1, Q("2 mm")))
sketch12.addConstraint(Sketcher.Constraint("DistanceX", -1, 1, 0, 2, Q("60 mm")))
sketch12.addConstraint(Sketcher.Constraint("DistanceY", 1, 2, 1, 1, Q("59.534653 mm")))
sketch12.addConstraint(Sketcher.Constraint("DistanceY", -1, 1, 3, 3, Q("13.179643 mm")))
pad12 = body12.newObject("PartDesign::Pad", "Pad011")
pad12.Profile = sketch12
pad12.Length = 1000
body13 = doc.addObject("PartDesign::Body", "Body012")

# Sketch on XZ plane
sketch13 = body13.newObject("Sketcher::SketchObject", "Sketch012")
sketch13.AttachmentSupport = (doc.getObject("XZ_Plane012"), [""])
sketch13.MapMode = "FlatFace"
sketch13.addGeometry(Part.LineSegment(V(42, 12.679643, 0), V(42, 72.214296, 0)), False)
sketch13.addGeometry(Part.LineSegment(V(42, 72.214296, 0), V(40, 72.214296, 0)), False)
sketch13.addGeometry(Part.LineSegment(V(40, 72.214296, 0), V(40, 13.179643, 0)), False)
sketch13.addGeometry(Part.ArcOfCircle(Part.Circle(V(40.5, 13.179643, 0), V(0, 0, 1), 0.5), math.radians(180), math.radians(270)), False)
sketch13.addGeometry(Part.LineSegment(V(40.5, 12.679643, 0), V(42, 12.679643, 0)), False)
sketch13.addConstraint(Sketcher.Constraint("Coincident", 0, 2, 1, 1))
sketch13.addConstraint(Sketcher.Constraint("Coincident", 1, 2, 2, 1))
sketch13.addConstraint(Sketcher.Constraint("Tangent", 2, 2, 3, 1))
sketch13.addConstraint(Sketcher.Constraint("Tangent", 3, 2, 4, 1))
sketch13.addConstraint(Sketcher.Constraint("Coincident", 4, 2, 0, 1))
sketch13.addConstraint(Sketcher.Constraint("Vertical", 0))
sketch13.addConstraint(Sketcher.Constraint("Horizontal", 1))
sketch13.addConstraint(Sketcher.Constraint("Vertical", 2))
sketch13.addConstraint(Sketcher.Constraint("Horizontal", 4))
sketch13.addConstraint(Sketcher.Constraint("Radius", 3, Q("0.5 mm")))
sketch13.addConstraint(Sketcher.Constraint("DistanceX", 1, 2, 1, 1, Q("2 mm")))
sketch13.addConstraint(Sketcher.Constraint("DistanceX", -1, 1, 0, 2, Q("42 mm")))
sketch13.addConstraint(Sketcher.Constraint("DistanceY", 0, 1, 0, 2, Q("59.534653 mm")))
sketch13.addConstraint(Sketcher.Constraint("DistanceY", -1, 1, 3, 3, Q("13.179643 mm")))
pad13 = body13.newObject("PartDesign::Pad", "Pad012")
pad13.Profile = sketch13
pad13.Length = 1000
body14 = doc.addObject("PartDesign::Body", "Body013")

# Sketch on XZ plane
sketch14 = body14.newObject("Sketcher::SketchObject", "Sketch013")
sketch14.AttachmentSupport = (doc.getObject("XZ_Plane013"), [""])
sketch14.MapMode = "FlatFace"
sketch14.addGeometry(Part.LineSegment(V(40, -77.785704, 0), V(42, -77.785704, 0)), False)
sketch14.addGeometry(Part.LineSegment(V(42, -77.785704, 0), V(42, -18.751052, 0)), False)
sketch14.addGeometry(Part.ArcOfCircle(Part.Circle(V(41.5, -18.751052, 0), V(0, 0, 1), 0.5), math.radians(0), math.radians(90)), False)
sketch14.addGeometry(Part.LineSegment(V(41.5, -18.251052, 0), V(40, -18.251052, 0)), False)
sketch14.addGeometry(Part.LineSegment(V(40, -18.251052, 0), V(40, -77.785704, 0)), False)
sketch14.addConstraint(Sketcher.Constraint("Coincident", 0, 2, 1, 1))
sketch14.addConstraint(Sketcher.Constraint("Tangent", 1, 2, 2, 1))
sketch14.addConstraint(Sketcher.Constraint("Tangent", 2, 2, 3, 1))
sketch14.addConstraint(Sketcher.Constraint("Coincident", 3, 2, 4, 1))
sketch14.addConstraint(Sketcher.Constraint("Coincident", 4, 2, 0, 1))
sketch14.addConstraint(Sketcher.Constraint("Horizontal", 0))
sketch14.addConstraint(Sketcher.Constraint("Vertical", 1))
sketch14.addConstraint(Sketcher.Constraint("Horizontal", 3))
sketch14.addConstraint(Sketcher.Constraint("Vertical", 4))
sketch14.addConstraint(Sketcher.Constraint("Radius", 2, Q("0.5 mm")))
sketch14.addConstraint(Sketcher.Constraint("DistanceX", 0, 1, 0, 2, Q("2 mm")))
sketch14.addConstraint(Sketcher.Constraint("DistanceX", -1, 1, 0, 2, Q("42 mm")))
sketch14.addConstraint(Sketcher.Constraint("DistanceY", 1, 1, 1, 2, Q("59.034653 mm")))
sketch14.addConstraint(Sketcher.Constraint("DistanceY", 2, 3, -1, 1, Q("18.751052 mm")))
pad14 = body14.newObject("PartDesign::Pad", "Pad013")
pad14.Profile = sketch14
pad14.Length = 1000
body15 = doc.addObject("PartDesign::Body", "Body014")

# Sketch on XZ plane
sketch15 = body15.newObject("Sketcher::SketchObject", "Sketch014")
sketch15.AttachmentSupport = (doc.getObject("XZ_Plane014"), [""])
sketch15.MapMode = "FlatFace"
sketch15.addGeometry(Part.LineSegment(V(60, -18.751052, 0), V(60, -77.785704, 0)), False)
sketch15.addGeometry(Part.LineSegment(V(60, -77.785704, 0), V(62, -77.785704, 0)), False)
sketch15.addGeometry(Part.LineSegment(V(62, -77.785704, 0), V(62, -18.251052, 0)), False)
sketch15.addGeometry(Part.LineSegment(V(62, -18.251052, 0), V(60.5, -18.251052, 0)), False)
sketch15.addGeometry(Part.ArcOfCircle(Part.Circle(V(60.5, -18.751052, 0), V(0, 0, 1), 0.5), math.radians(90), math.radians(180)), False)
sketch15.addConstraint(Sketcher.Constraint("Coincident", 0, 2, 1, 1))
sketch15.addConstraint(Sketcher.Constraint("Coincident", 1, 2, 2, 1))
sketch15.addConstraint(Sketcher.Constraint("Coincident", 2, 2, 3, 1))
sketch15.addConstraint(Sketcher.Constraint("Tangent", 3, 2, 4, 1))
sketch15.addConstraint(Sketcher.Constraint("Tangent", 4, 2, 0, 1))
sketch15.addConstraint(Sketcher.Constraint("Vertical", 0))
sketch15.addConstraint(Sketcher.Constraint("Horizontal", 1))
sketch15.addConstraint(Sketcher.Constraint("Vertical", 2))
sketch15.addConstraint(Sketcher.Constraint("Horizontal", 3))
sketch15.addConstraint(Sketcher.Constraint("Radius", 4, Q("0.5 mm")))
sketch15.addConstraint(Sketcher.Constraint("DistanceX", 1, 1, 1, 2, Q("2 mm")))
sketch15.addConstraint(Sketcher.Constraint("DistanceX", -1, 1, 0, 2, Q("60 mm")))
sketch15.addConstraint(Sketcher.Constraint("DistanceY", 0, 2, 0, 1, Q("59.034653 mm")))
sketch15.addConstraint(Sketcher.Constraint("DistanceY", 4, 3, -1, 1, Q("18.751052 mm")))
pad15 = body15.newObject("PartDesign::Pad", "Pad014")
pad15.Profile = sketch15
pad15.Length = 1000

doc.recompute()
